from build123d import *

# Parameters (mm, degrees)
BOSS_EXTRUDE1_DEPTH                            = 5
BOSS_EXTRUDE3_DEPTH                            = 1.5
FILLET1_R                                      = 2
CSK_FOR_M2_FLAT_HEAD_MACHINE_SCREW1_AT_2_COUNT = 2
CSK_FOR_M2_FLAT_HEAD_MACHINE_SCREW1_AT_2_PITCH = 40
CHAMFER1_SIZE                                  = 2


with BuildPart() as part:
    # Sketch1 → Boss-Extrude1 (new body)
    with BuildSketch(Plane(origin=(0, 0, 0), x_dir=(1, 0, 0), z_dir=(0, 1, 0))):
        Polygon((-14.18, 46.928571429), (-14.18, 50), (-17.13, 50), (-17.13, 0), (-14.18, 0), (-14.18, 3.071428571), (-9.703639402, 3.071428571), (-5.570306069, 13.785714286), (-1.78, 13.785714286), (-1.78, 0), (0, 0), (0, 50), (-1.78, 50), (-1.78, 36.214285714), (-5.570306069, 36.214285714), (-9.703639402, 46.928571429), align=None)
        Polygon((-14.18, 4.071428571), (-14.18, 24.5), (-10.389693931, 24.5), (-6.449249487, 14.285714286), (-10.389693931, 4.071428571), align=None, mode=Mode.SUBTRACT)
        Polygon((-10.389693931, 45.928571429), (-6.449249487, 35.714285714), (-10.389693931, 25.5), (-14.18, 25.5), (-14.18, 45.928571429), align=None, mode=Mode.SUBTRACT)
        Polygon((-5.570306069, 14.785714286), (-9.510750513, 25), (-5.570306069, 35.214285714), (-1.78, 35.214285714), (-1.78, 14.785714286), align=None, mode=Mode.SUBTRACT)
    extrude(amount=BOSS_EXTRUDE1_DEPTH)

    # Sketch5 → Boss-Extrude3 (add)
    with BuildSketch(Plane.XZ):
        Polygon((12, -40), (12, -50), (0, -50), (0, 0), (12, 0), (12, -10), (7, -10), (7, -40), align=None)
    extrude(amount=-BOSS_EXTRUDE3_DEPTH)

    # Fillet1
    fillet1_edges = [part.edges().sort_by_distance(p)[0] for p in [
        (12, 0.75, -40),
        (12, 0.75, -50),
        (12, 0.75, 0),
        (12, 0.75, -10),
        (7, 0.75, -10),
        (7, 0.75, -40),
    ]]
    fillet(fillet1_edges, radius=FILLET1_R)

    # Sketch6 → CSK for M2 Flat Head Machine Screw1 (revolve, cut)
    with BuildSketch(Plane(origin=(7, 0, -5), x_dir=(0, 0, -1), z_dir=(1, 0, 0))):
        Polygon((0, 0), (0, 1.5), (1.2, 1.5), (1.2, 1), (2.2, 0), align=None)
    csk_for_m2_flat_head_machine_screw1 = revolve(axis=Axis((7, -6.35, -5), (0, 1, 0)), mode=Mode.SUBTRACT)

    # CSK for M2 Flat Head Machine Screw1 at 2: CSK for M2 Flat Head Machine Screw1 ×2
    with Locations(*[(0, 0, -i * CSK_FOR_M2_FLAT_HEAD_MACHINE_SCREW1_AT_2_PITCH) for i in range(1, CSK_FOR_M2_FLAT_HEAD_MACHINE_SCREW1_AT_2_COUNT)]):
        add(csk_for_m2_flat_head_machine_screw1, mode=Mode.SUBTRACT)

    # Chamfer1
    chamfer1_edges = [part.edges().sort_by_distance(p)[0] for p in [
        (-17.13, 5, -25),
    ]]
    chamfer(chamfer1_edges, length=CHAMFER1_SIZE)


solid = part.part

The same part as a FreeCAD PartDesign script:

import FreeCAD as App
import Part
import Sketcher

V = App.Vector
Q = App.Units.Quantity


def edges_at(feature, points):
    """Names of the edges that pass closest to the given points."""
    edges = feature.Shape.Edges
    near = lambda p: min(range(len(edges)), key=lambda i: edges[i].distToShape(Part.Vertex(*p))[0])
    return sorted({f"Edge{near(p) + 1}" for p in points})

doc = App.newDocument("Part")
body = doc.addObject("PartDesign::Body", "Body")

sketch1 = body.newObject("Sketcher::SketchObject", "Sketch")
sketch1.AttachmentSupport = (doc.getObject("XZ_Plane"), [""])
sketch1.MapMode = "FlatFace"
sketch1.addGeometry(Part.LineSegment(V(-14.2, -46.9, 0), V(-14.2, -50, 0)), False)
sketch1.addGeometry(Part.LineSegment(V(-14.2, -50, 0), V(-17.1, -50, 0)), False)
sketch1.addGeometry(Part.LineSegment(V(-17.1, -50, 0), V(-17.1, 0, 0)), False)
sketch1.addGeometry(Part.LineSegment(V(-17.1, 0, 0), V(-14.2, 0, 0)), False)
sketch1.addGeometry(Part.LineSegment(V(-14.2, 0, 0), V(-14.2, -3.1, 0)), False)
sketch1.addGeometry(Part.LineSegment(V(-14.2, -3.1, 0), V(-9.7, -3.1, 0)), False)
sketch1.addGeometry(Part.LineSegment(V(-9.7, -3.1, 0), V(-5.6, -13.8, 0)), False)
sketch1.addGeometry(Part.LineSegment(V(-5.6, -13.8, 0), V(-1.8, -13.8, 0)), False)
sketch1.addGeometry(Part.LineSegment(V(-1.8, -13.8, 0), V(-1.8, 0, 0)), False)
sketch1.addGeometry(Part.LineSegment(V(-1.8, 0, 0), V(0, 0, 0)), False)
sketch1.addGeometry(Part.LineSegment(V(0, 0, 0), V(0, -50, 0)), False)
sketch1.addGeometry(Part.LineSegment(V(0, -50, 0), V(-1.8, -50, 0)), False)
sketch1.addGeometry(Part.LineSegment(V(-1.8, -50, 0), V(-1.8, -36.2, 0)), False)
sketch1.addGeometry(Part.LineSegment(V(-1.8, -36.2, 0), V(-5.6, -36.2, 0)), False)
sketch1.addGeometry(Part.LineSegment(V(-5.6, -36.2, 0), V(-9.7, -46.9, 0)), False)
sketch1.addGeometry(Part.LineSegment(V(-9.7, -46.9, 0), V(-14.2, -46.9, 0)), False)
sketch1.addGeometry(Part.LineSegment(V(-10.4, -4.1, 0), V(-14.2, -4.1, 0)), False)
sketch1.addGeometry(Part.LineSegment(V(-14.2, -4.1, 0), V(-14.2, -24.5, 0)), False)
sketch1.addGeometry(Part.LineSegment(V(-14.2, -24.5, 0), V(-10.4, -24.5, 0)), False)
sketch1.addGeometry(Part.LineSegment(V(-10.4, -24.5, 0), V(-6.4, -14.3, 0)), False)
sketch1.addGeometry(Part.LineSegment(V(-6.4, -14.3, 0), V(-10.4, -4.1, 0)), False)
sketch1.addGeometry(Part.LineSegment(V(-14.2, -45.9, 0), V(-10.4, -45.9, 0)), False)
sketch1.addGeometry(Part.LineSegment(V(-10.4, -45.9, 0), V(-6.4, -35.7, 0)), False)
sketch1.addGeometry(Part.LineSegment(V(-6.4, -35.7, 0), V(-10.4, -25.5, 0)), False)
sketch1.addGeometry(Part.LineSegment(V(-10.4, -25.5, 0), V(-14.2, -25.5, 0)), False)
sketch1.addGeometry(Part.LineSegment(V(-14.2, -25.5, 0), V(-14.2, -45.9, 0)), False)
sketch1.addGeometry(Part.LineSegment(V(-1.8, -14.8, 0), V(-5.6, -14.8, 0)), False)
sketch1.addGeometry(Part.LineSegment(V(-5.6, -14.8, 0), V(-9.5, -25, 0)), False)
sketch1.addGeometry(Part.LineSegment(V(-9.5, -25, 0), V(-5.6, -35.2, 0)), False)
sketch1.addGeometry(Part.LineSegment(V(-5.6, -35.2, 0), V(-1.8, -35.2, 0)), False)
sketch1.addGeometry(Part.LineSegment(V(-1.8, -35.2, 0), V(-1.8, -14.8, 0)), False)
sketch1.addConstraint(Sketcher.Constraint("Coincident", 0, 2, 1, 1))
sketch1.addConstraint(Sketcher.Constraint("Coincident", 1, 2, 2, 1))
sketch1.addConstraint(Sketcher.Constraint("Coincident", 2, 2, 3, 1))
sketch1.addConstraint(Sketcher.Constraint("Coincident", 3, 2, 4, 1))
sketch1.addConstraint(Sketcher.Constraint("Coincident", 4, 2, 5, 1))
sketch1.addConstraint(Sketcher.Constraint("Coincident", 5, 2, 6, 1))
sketch1.addConstraint(Sketcher.Constraint("Coincident", 6, 2, 7, 1))
sketch1.addConstraint(Sketcher.Constraint("Coincident", 7, 2, 8, 1))
sketch1.addConstraint(Sketcher.Constraint("Coincident", 8, 2, 9, 1))
sketch1.addConstraint(Sketcher.Constraint("Coincident", 9, 2, 10, 1))
sketch1.addConstraint(Sketcher.Constraint("Coincident", 10, 2, 11, 1))
sketch1.addConstraint(Sketcher.Constraint("Coincident", 11, 2, 12, 1))
sketch1.addConstraint(Sketcher.Constraint("Coincident", 12, 2, 13, 1))
sketch1.addConstraint(Sketcher.Constraint("Coincident", 13, 2, 14, 1))
sketch1.addConstraint(Sketcher.Constraint("Coincident", 14, 2, 15, 1))
sketch1.addConstraint(Sketcher.Constraint("Coincident", 15, 2, 0, 1))
sketch1.addConstraint(Sketcher.Constraint("Coincident", 16, 2, 17, 1))
sketch1.addConstraint(Sketcher.Constraint("Coincident", 17, 2, 18, 1))
sketch1.addConstraint(Sketcher.Constraint("Coincident", 18, 2, 19, 1))
sketch1.addConstraint(Sketcher.Constraint("Coincident", 19, 2, 20, 1))
sketch1.addConstraint(Sketcher.Constraint("Coincident", 20, 2, 16, 1))
sketch1.addConstraint(Sketcher.Constraint("Coincident", 21, 2, 22, 1))
sketch1.addConstraint(Sketcher.Constraint("Coincident", 22, 2, 23, 1))
sketch1.addConstraint(Sketcher.Constraint("Coincident", 23, 2, 24, 1))
sketch1.addConstraint(Sketcher.Constraint("Coincident", 24, 2, 25, 1))
sketch1.addConstraint(Sketcher.Constraint("Coincident", 25, 2, 21, 1))
sketch1.addConstraint(Sketcher.Constraint("Coincident", 26, 2, 27, 1))
sketch1.addConstraint(Sketcher.Constraint("Coincident", 27, 2, 28, 1))
sketch1.addConstraint(Sketcher.Constraint("Coincident", 28, 2, 29, 1))
sketch1.addConstraint(Sketcher.Constraint("Coincident", 29, 2, 30, 1))
sketch1.addConstraint(Sketcher.Constraint("Coincident", 30, 2, 26, 1))
sketch1.addConstraint(Sketcher.Constraint("Vertical", 0))
sketch1.addConstraint(Sketcher.Constraint("Horizontal", 1))
sketch1.addConstraint(Sketcher.Constraint("Vertical", 2))
sketch1.addConstraint(Sketcher.Constraint("Horizontal", 3))
sketch1.addConstraint(Sketcher.Constraint("Vertical", 4))
sketch1.addConstraint(Sketcher.Constraint("Horizontal", 5))
sketch1.addConstraint(Sketcher.Constraint("Horizontal", 7))
sketch1.addConstraint(Sketcher.Constraint("Vertical", 8))
sketch1.addConstraint(Sketcher.Constraint("Horizontal", 9))
sketch1.addConstraint(Sketcher.Constraint("Vertical", 10))
sketch1.addConstraint(Sketcher.Constraint("Horizontal", 11))
sketch1.addConstraint(Sketcher.Constraint("Vertical", 12))
sketch1.addConstraint(Sketcher.Constraint("Horizontal", 13))
sketch1.addConstraint(Sketcher.Constraint("Horizontal", 15))
sketch1.addConstraint(Sketcher.Constraint("Horizontal", 16))
sketch1.addConstraint(Sketcher.Constraint("Vertical", 17))
sketch1.addConstraint(Sketcher.Constraint("Horizontal", 18))
sketch1.addConstraint(Sketcher.Constraint("Horizontal", 21))
sketch1.addConstraint(Sketcher.Constraint("Horizontal", 24))
sketch1.addConstraint(Sketcher.Constraint("Vertical", 25))
sketch1.addConstraint(Sketcher.Constraint("Horizontal", 26))
sketch1.addConstraint(Sketcher.Constraint("Horizontal", 29))
sketch1.addConstraint(Sketcher.Constraint("Vertical", 30))
sketch1.addConstraint(Sketcher.Constraint("Coincident", 9, 2, -1, 1))
sketch1.addConstraint(Sketcher.Constraint("PointOnObject", 2, 2, -1))
sketch1.addConstraint(Sketcher.Constraint("Parallel", 14, 19))
sketch1.addConstraint(Sketcher.Constraint("Parallel", 6, 20))
sketch1.addConstraint(Sketcher.Constraint("Parallel", 19, 22))
sketch1.addConstraint(Sketcher.Constraint("Parallel", 20, 23))
sketch1.addConstraint(Sketcher.Constraint("Parallel", 22, 27))
sketch1.addConstraint(Sketcher.Constraint("Parallel", 23, 28))
sketch1.addConstraint(Sketcher.Constraint("Horizontal", 1, 2, 10, 2))
sketch1.addConstraint(Sketcher.Constraint("Vertical", 0, 2, 3, 2))
sketch1.addConstraint(Sketcher.Constraint("Vertical", 8, 2, 11, 2))
sketch1.addConstraint(Sketcher.Constraint("Vertical", 6, 2, 13, 2))
sketch1.addConstraint(Sketcher.Constraint("Vertical", 5, 2, 14, 2))
sketch1.addConstraint(Sketcher.Constraint("Vertical", 15, 2, 16, 2))
sketch1.addConstraint(Sketcher.Constraint("Vertical", 18, 2, 20, 2))
sketch1.addConstraint(Sketcher.Constraint("Vertical", 20, 2, 21, 2))
sketch1.addConstraint(Sketcher.Constraint("Vertical", 19, 2, 22, 2))
sketch1.addConstraint(Sketcher.Constraint("Vertical", 21, 2, 23, 2))
sketch1.addConstraint(Sketcher.Constraint("Vertical", 17, 2, 24, 2))
sketch1.addConstraint(Sketcher.Constraint("Vertical", 13, 2, 26, 2))
sketch1.addConstraint(Sketcher.Constraint("Vertical", 26, 2, 28, 2))
sketch1.addConstraint(Sketcher.Constraint("Vertical", 12, 2, 29, 2))
sketch1.addConstraint(Sketcher.Constraint("Equal", 13, 16))
sketch1.addConstraint(Sketcher.Constraint("Equal", 0, 4))
sketch1.addConstraint(Sketcher.Constraint("Equal", 8, 12))
sketch1.addConstraint(Sketcher.Constraint("Equal", 25, 30))
sketch1.addConstraint(Sketcher.Constraint("DistanceY", 2, 1, 2, 2, Q("50 mm")))
sketch1.addConstraint(Sketcher.Constraint("DistanceY", 27, 2, -1, 1, Q("25 mm")))
sketch1.addConstraint(Sketcher.Constraint("DistanceY", 16, 2, 4, 2, Q("1 mm")))
sketch1.addConstraint(Sketcher.Constraint("DistanceY", 14, 2, 21, 2, Q("1 mm")))
sketch1.addConstraint(Sketcher.Constraint("DistanceY", 23, 2, 18, 2, Q("1 mm")))
sketch1.addConstraint(Sketcher.Constraint("DistanceY", 26, 2, 6, 2, Q("1 mm")))
sketch1.addConstraint(Sketcher.Constraint("DistanceX", 1, 2, 1, 1, Q("2.95 mm")))
sketch1.addConstraint(Sketcher.Constraint("DistanceX", 9, 1, 9, 2, Q("1.78 mm")))
sketch1.addConstraint(Sketcher.Constraint("DistanceX", 4, 2, 7, 2, Q("12.4 mm")))
sketch1.addConstraint(Sketcher.Constraint("Distance", 19, Q("10.948001 mm")))
sketch1.addConstraint(Sketcher.Constraint("DistanceX", 5, 1, 5, 2, Q("4.476361 mm")))
sketch1.addConstraint(Sketcher.Constraint("DistanceY", 0, 2, 0, 1, Q("3.071429 mm")))
pad1 = body.newObject("PartDesign::Pad", "Pad")
pad1.Profile = sketch1
pad1.Length = 5
pad1.Reversed = True

sketch2 = body.newObject("Sketcher::SketchObject", "Sketch001")
sketch2.AttachmentSupport = (doc.getObject("XZ_Plane"), [""])
sketch2.MapMode = "FlatFace"
sketch2.addGeometry(Part.LineSegment(V(12, -50, 0), V(12, -40, 0)), False)
sketch2.addGeometry(Part.LineSegment(V(12, -40, 0), V(7, -40, 0)), False)
sketch2.addGeometry(Part.LineSegment(V(7, -40, 0), V(7, -10, 0)), False)
sketch2.addGeometry(Part.LineSegment(V(7, -10, 0), V(12, -10, 0)), False)
sketch2.addGeometry(Part.LineSegment(V(12, -10, 0), V(12, 0, 0)), False)
sketch2.addGeometry(Part.LineSegment(V(12, 0, 0), V(0, 0, 0)), False)
sketch2.addGeometry(Part.LineSegment(V(0, 0, 0), V(0, -50, 0)), False)
sketch2.addGeometry(Part.LineSegment(V(0, -50, 0), V(12, -50, 0)), False)
sketch2.addConstraint(Sketcher.Constraint("Coincident", 0, 2, 1, 1))
sketch2.addConstraint(Sketcher.Constraint("Coincident", 1, 2, 2, 1))
sketch2.addConstraint(Sketcher.Constraint("Coincident", 2, 2, 3, 1))
sketch2.addConstraint(Sketcher.Constraint("Coincident", 3, 2, 4, 1))
sketch2.addConstraint(Sketcher.Constraint("Coincident", 4, 2, 5, 1))
sketch2.addConstraint(Sketcher.Constraint("Coincident", 5, 2, 6, 1))
sketch2.addConstraint(Sketcher.Constraint("Coincident", 6, 2, 7, 1))
sketch2.addConstraint(Sketcher.Constraint("Coincident", 7, 2, 0, 1))
sketch2.addConstraint(Sketcher.Constraint("Vertical", 0))
sketch2.addConstraint(Sketcher.Constraint("Horizontal", 1))
sketch2.addConstraint(Sketcher.Constraint("Vertical", 2))
sketch2.addConstraint(Sketcher.Constraint("Horizontal", 3))
sketch2.addConstraint(Sketcher.Constraint("Vertical", 4))
sketch2.addConstraint(Sketcher.Constraint("Horizontal", 5))
sketch2.addConstraint(Sketcher.Constraint("Vertical", 6))
sketch2.addConstraint(Sketcher.Constraint("Horizontal", 7))
sketch2.addConstraint(Sketcher.Constraint("Coincident", 5, 2, -1, 1))
sketch2.addConstraint(Sketcher.Constraint("Vertical", 0, 2, 3, 2))
sketch2.addConstraint(Sketcher.Constraint("Equal", 0, 4))
sketch2.addConstraint(Sketcher.Constraint("DistanceX", 1, 2, 1, 1, Q("5 mm")))
sketch2.addConstraint(Sketcher.Constraint("DistanceX", 5, 2, 5, 1, Q("12 mm")))
sketch2.addConstraint(Sketcher.Constraint("DistanceY", 0, 1, 0, 2, Q("10 mm")))
sketch2.addConstraint(Sketcher.Constraint("DistanceY", 2, 1, 2, 2, Q("30 mm")))
pad2 = body.newObject("PartDesign::Pad", "Pad001")
pad2.Profile = sketch2
pad2.Length = 1.5
pad2.Reversed = True
doc.recompute()

fillet = body.newObject("PartDesign::Fillet", "Fillet")
fillet.Base = (pad2, edges_at(pad2, [
    (12, 0.75, -40),
    (12, 0.75, -50),
    (12, 0.75, 0),
    (12, 0.75, -10),
    (7, 0.75, -10),
    (7, 0.75, -40),
]))
fillet.Radius = 2

sketch3 = body.newObject("Sketcher::SketchObject", "Sketch002")
sketch3.AttachmentSupport = (doc.getObject("YZ_Plane"), [""])
sketch3.MapMode = "FlatFace"
sketch3.AttachmentOffset = App.Placement(V(0, 0, 7), App.Rotation())
sketch3.addGeometry(Part.LineSegment(V(1.5, -5, 0), V(0, -5, 0)), False)
sketch3.addGeometry(Part.LineSegment(V(0, -5, 0), V(0, -7.2, 0)), False)
sketch3.addGeometry(Part.LineSegment(V(0, -7.2, 0), V(1, -6.2, 0)), False)
sketch3.addGeometry(Part.LineSegment(V(1, -6.2, 0), V(1.5, -6.2, 0)), False)
sketch3.addGeometry(Part.LineSegment(V(1.5, -6.2, 0), V(1.5, -5, 0)), False)
sketch3.addGeometry(Part.LineSegment(V(0, -5, 0), V(1.5, -5, 0)), True)
sketch3.addConstraint(Sketcher.Constraint("Coincident", 0, 2, 1, 1))
sketch3.addConstraint(Sketcher.Constraint("Coincident", 1, 2, 2, 1))
sketch3.addConstraint(Sketcher.Constraint("Coincident", 2, 2, 3, 1))
sketch3.addConstraint(Sketcher.Constraint("Coincident", 3, 2, 4, 1))
sketch3.addConstraint(Sketcher.Constraint("Coincident", 4, 2, 0, 1))
sketch3.addConstraint(Sketcher.Constraint("Horizontal", 0))
sketch3.addConstraint(Sketcher.Constraint("Vertical", 1))
sketch3.addConstraint(Sketcher.Constraint("Horizontal", 3))
sketch3.addConstraint(Sketcher.Constraint("Vertical", 4))
sketch3.addConstraint(Sketcher.Constraint("Horizontal", 5))
sketch3.addConstraint(Sketcher.Constraint("Coincident", 5, 1, 0, 2))
sketch3.addConstraint(Sketcher.Constraint("PointOnObject", 0, 2, -2))
sketch3.addConstraint(Sketcher.Constraint("Vertical", 3, 2, 5, 2))
sketch3.addConstraint(Sketcher.Constraint("Angle", 2, Q("45 deg")))
sketch3.addConstraint(Sketcher.Constraint("DistanceX", 0, 2, 0, 1, Q("1.5 mm")))
sketch3.addConstraint(Sketcher.Constraint("DistanceX", 3, 1, 3, 2, Q("0.5 mm")))
sketch3.addConstraint(Sketcher.Constraint("DistanceY", 1, 2, 1, 1, Q("2.2 mm")))
sketch3.addConstraint(Sketcher.Constraint("DistanceY", 0, 2, -1, 1, Q("5 mm")))
groove = body.newObject("PartDesign::Groove", "Groove")
groove.Profile = sketch3
groove.ReferenceAxis = (sketch3, ["Axis0"])
groove.Angle = 360
doc.recompute()

linearpattern = body.newObject("PartDesign::LinearPattern", "LinearPattern")
linearpattern.Originals = [groove]
linearpattern.Direction = (doc.getObject("Z_Axis"), [""])
linearpattern.Mode = "offset"
linearpattern.Offset = 40
linearpattern.Occurrences = 2
linearpattern.Reversed = True
body.Tip = linearpattern
doc.recompute()

chamfer = body.newObject("PartDesign::Chamfer", "Chamfer")
chamfer.Base = (linearpattern, edges_at(linearpattern, [(-17.13, 5, -25)]))
chamfer.Size = 2

doc.recompute()
